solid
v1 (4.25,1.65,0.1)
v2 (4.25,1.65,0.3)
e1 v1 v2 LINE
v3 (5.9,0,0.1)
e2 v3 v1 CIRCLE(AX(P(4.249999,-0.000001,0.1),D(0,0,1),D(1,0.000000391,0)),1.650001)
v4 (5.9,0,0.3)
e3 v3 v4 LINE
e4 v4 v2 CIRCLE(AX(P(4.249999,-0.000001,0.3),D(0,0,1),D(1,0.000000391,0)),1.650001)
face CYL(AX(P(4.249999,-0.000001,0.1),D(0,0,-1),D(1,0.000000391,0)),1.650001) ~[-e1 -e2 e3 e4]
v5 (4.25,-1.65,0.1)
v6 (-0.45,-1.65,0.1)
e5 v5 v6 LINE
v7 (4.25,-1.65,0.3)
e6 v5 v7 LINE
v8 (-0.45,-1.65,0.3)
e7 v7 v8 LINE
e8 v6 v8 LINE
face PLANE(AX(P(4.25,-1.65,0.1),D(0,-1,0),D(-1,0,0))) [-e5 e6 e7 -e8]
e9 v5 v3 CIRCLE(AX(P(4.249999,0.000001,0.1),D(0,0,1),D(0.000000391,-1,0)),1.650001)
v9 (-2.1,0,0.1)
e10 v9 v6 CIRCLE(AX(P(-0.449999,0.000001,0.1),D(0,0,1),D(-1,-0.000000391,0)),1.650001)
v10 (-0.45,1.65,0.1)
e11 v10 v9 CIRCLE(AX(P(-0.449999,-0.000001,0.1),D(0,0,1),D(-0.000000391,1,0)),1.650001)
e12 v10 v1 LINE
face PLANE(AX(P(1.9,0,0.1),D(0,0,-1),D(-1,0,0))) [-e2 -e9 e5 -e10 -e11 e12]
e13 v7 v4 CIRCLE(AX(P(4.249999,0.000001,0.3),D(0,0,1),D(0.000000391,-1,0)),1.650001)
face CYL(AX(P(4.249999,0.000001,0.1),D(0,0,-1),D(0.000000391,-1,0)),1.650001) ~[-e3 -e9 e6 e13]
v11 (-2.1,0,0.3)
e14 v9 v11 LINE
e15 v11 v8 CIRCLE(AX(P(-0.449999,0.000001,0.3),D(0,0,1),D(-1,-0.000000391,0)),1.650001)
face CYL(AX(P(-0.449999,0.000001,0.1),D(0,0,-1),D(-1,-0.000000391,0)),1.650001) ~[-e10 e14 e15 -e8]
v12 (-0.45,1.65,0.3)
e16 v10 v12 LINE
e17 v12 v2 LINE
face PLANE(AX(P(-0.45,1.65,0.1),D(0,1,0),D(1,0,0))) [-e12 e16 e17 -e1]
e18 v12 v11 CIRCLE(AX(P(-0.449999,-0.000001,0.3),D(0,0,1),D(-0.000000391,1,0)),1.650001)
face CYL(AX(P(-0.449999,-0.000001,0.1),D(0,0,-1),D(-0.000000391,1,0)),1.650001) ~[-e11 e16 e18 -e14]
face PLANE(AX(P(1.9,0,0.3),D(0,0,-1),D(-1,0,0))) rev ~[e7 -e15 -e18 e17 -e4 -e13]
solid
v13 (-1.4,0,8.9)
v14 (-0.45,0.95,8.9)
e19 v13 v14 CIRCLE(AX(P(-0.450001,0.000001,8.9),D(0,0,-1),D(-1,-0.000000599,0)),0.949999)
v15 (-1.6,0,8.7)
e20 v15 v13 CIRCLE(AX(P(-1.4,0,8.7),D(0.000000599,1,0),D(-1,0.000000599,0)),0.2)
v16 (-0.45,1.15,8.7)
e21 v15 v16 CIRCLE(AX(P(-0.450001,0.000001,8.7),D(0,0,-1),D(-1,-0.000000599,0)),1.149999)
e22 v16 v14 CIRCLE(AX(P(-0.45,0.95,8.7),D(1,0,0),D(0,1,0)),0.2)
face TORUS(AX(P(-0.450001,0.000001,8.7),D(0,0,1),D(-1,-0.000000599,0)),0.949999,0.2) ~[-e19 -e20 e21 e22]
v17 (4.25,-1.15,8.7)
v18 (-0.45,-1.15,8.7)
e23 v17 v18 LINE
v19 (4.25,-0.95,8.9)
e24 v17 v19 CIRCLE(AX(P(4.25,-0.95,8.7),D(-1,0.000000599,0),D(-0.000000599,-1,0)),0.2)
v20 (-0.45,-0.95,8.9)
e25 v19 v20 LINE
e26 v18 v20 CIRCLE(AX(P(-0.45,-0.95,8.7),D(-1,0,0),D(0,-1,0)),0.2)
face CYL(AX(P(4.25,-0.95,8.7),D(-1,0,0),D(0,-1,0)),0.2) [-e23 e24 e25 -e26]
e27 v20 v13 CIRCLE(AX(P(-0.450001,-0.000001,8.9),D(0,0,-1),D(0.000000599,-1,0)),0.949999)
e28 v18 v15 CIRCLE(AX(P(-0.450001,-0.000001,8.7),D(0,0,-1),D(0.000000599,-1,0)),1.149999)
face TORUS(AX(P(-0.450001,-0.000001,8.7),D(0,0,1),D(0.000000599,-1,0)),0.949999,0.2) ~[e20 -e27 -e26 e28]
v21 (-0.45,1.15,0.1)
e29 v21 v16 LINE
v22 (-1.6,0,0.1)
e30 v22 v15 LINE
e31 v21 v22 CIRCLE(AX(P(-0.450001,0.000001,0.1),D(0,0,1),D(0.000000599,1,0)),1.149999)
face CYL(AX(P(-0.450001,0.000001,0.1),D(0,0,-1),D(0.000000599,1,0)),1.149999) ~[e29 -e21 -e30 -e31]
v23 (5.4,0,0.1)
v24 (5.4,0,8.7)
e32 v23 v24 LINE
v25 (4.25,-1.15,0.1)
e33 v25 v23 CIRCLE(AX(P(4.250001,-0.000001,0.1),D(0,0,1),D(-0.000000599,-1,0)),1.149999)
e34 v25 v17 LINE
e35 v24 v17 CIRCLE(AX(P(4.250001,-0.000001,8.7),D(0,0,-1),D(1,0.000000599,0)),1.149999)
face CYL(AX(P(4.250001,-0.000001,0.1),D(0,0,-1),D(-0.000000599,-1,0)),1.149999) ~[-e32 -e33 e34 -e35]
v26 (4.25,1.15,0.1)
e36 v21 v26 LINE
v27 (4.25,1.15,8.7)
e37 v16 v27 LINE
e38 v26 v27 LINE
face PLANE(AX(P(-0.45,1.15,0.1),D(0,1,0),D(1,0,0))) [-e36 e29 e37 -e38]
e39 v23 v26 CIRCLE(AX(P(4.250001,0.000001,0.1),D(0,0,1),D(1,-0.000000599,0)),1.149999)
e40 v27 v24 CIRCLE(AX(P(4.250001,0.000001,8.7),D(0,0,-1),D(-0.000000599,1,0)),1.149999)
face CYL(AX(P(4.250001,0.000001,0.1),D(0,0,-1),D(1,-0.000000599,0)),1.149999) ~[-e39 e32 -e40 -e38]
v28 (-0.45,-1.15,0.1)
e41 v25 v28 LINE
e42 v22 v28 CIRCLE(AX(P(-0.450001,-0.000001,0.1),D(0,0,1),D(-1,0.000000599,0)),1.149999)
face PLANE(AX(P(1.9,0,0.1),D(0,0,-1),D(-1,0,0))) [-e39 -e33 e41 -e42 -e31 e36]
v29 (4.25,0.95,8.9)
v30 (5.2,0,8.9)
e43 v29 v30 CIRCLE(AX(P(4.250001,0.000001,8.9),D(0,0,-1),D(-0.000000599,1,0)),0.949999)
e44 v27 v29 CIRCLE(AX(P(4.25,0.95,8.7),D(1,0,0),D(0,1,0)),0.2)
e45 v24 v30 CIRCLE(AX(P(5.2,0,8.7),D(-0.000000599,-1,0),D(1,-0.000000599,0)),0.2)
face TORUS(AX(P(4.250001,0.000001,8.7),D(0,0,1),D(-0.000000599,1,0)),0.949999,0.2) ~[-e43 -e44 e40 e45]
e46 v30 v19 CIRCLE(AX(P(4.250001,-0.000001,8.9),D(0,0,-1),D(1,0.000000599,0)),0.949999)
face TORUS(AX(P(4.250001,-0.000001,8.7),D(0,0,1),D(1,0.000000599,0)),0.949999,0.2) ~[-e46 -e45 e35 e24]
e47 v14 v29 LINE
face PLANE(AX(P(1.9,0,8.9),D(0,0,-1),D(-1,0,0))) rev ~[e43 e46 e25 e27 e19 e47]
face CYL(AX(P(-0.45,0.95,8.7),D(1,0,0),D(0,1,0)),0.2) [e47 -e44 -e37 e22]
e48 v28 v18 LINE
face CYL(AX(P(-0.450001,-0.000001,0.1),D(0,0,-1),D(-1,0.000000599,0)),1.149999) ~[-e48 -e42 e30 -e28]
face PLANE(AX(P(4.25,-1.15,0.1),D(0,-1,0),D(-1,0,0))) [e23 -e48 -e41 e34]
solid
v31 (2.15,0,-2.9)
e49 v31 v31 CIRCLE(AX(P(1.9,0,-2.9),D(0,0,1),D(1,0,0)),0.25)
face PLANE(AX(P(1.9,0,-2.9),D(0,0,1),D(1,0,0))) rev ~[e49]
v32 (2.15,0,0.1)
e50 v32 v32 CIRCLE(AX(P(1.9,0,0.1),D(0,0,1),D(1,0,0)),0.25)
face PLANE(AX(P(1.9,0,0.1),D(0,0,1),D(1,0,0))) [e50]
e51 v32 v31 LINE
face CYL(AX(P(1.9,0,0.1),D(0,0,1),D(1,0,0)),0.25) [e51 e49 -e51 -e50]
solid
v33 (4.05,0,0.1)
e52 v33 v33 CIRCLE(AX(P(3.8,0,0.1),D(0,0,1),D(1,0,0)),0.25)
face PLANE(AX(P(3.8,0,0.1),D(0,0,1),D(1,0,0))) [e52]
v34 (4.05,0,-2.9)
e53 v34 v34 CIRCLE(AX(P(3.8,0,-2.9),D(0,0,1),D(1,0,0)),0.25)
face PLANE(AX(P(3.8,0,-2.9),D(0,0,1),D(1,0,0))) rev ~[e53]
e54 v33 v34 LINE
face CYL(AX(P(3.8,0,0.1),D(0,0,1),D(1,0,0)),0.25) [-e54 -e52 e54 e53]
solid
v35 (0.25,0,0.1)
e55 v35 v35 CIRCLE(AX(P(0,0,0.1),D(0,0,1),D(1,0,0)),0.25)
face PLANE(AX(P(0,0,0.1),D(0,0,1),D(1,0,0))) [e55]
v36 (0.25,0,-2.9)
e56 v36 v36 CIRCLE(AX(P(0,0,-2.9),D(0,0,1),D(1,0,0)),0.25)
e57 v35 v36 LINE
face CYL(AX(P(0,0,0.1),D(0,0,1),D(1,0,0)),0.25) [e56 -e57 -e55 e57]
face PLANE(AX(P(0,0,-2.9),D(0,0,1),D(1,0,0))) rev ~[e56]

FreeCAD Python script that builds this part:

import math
import FreeCAD as App
import Part
import Sketcher
from FreeCAD import Vector
Q = App.Units.Quantity


def edges_at(feature, points):
    """Names of the edges that pass closest to the given points."""
    edges = feature.Shape.Edges
    near = lambda p: min(range(len(edges)), key=lambda i: edges[i].distToShape(Part.Vertex(*p))[0])
    return sorted({f"Edge{near(p) + 1}" for p in points})

doc = App.newDocument("Part")
body = doc.addObject("PartDesign::Body", "Body")
body.AllowCompound = True

# Sketch on XY plane
sketch1 = body.newObject("Sketcher::SketchObject", "Sketch")
sketch1.AttachmentSupport = (doc.getObject("XY_Plane"), [""])
sketch1.MapMode = "FlatFace"
sketch1.AttachmentOffset = App.Placement(Vector(0, 0, 0.1), App.Rotation())
sketch1.addGeometry([
    Part.Circle(Vector(0, 0, 0), Vector(0, 0, 1), 0.25),
    Part.Circle(Vector(3.8, 0, 0), Vector(0, 0, 1), 0.25),
    Part.Circle(Vector(1.9, 0, 0), Vector(0, 0, 1), 0.25),
], False)
sketch1.addConstraint([
    Sketcher.Constraint("Coincident", 0, 3, -1, 1),
    Sketcher.Constraint("Equal", 0, 1),
    Sketcher.Constraint("Equal", 1, 2),
    Sketcher.Constraint("PointOnObject", 1, 3, -1),
    Sketcher.Constraint("PointOnObject", 2, 3, -1),
    Sketcher.Constraint("Diameter", 0, Q("0.5 mm")),
    Sketcher.Constraint("DistanceX", -1, 1, 1, 3, Q("3.8 mm")),
    Sketcher.Constraint("DistanceX", -1, 1, 2, 3, Q("1.9 mm")),
])
pad1 = body.newObject("PartDesign::Pad", "Pad")
pad1.Profile = sketch1
pad1.Length = 3
pad1.Reversed = True
body2 = doc.addObject("PartDesign::Body", "Body001")

# Sketch on XY plane
sketch2 = body2.newObject("Sketcher::SketchObject", "Sketch001")
sketch2.AttachmentSupport = (doc.getObject("XY_Plane001"), [""])
sketch2.MapMode = "FlatFace"
sketch2.AttachmentOffset = App.Placement(Vector(0, 0, 0.1), App.Rotation())
sketch2.addGeometry([
    Part.LineSegment(Vector(4.2, 1.6, 0), Vector(-0.5, 1.6, 0)),  # 0
    Part.ArcOfCircle(Part.Circle(Vector(-0.4, 0, 0), Vector(0, 0, 1), 1.7), math.radians(90), math.radians(180)),  # 1
    Part.ArcOfCircle(Part.Circle(Vector(-0.4, 0, 0), Vector(0, 0, 1), 1.7), math.radians(-180), math.radians(-90)),  # 2
    Part.LineSegment(Vector(-0.5, -1.6, 0), Vector(4.2, -1.6, 0)),  # 3
    Part.ArcOfCircle(Part.Circle(Vector(4.2, 0, 0), Vector(0, 0, 1), 1.7), math.radians(-90), math.radians(0)),  # 4
    Part.ArcOfCircle(Part.Circle(Vector(4.2, 0, 0), Vector(0, 0, 1), 1.7), math.radians(0), math.radians(90)),  # 5
], False)
sketch2.addConstraint([
    Sketcher.Constraint("Tangent", 0, 2, 1, 1),
    Sketcher.Constraint("Tangent", 1, 2, 2, 1),
    Sketcher.Constraint("Tangent", 2, 2, 3, 1),
    Sketcher.Constraint("Tangent", 3, 2, 4, 1),
    Sketcher.Constraint("Tangent", 4, 2, 5, 1),
    Sketcher.Constraint("Tangent", 5, 2, 0, 1),
    Sketcher.Constraint("Horizontal", 0),
    Sketcher.Constraint("Horizontal", 3),
    Sketcher.Constraint("Equal", 1, 2),
    Sketcher.Constraint("Equal", 2, 4),
    Sketcher.Constraint("PointOnObject", 1, 3, -1),
    Sketcher.Constraint("PointOnObject", 1, 2, -1),
    Sketcher.Constraint("PointOnObject", 4, 2, -1),
    Sketcher.Constraint("Radius", 1, Q("1.650001 mm")),
    Sketcher.Constraint("DistanceX", 0, 2, 0, 1, Q("4.7 mm")),
    Sketcher.Constraint("DistanceX", 1, 2, -1, 1, Q("2.1 mm")),
])
pad2 = body2.newObject("PartDesign::Pad", "Pad001")
pad2.Profile = sketch2
pad2.Length = 0.2
body3 = doc.addObject("PartDesign::Body", "Body002")

# Sketch on XY plane
sketch3 = body3.newObject("Sketcher::SketchObject", "Sketch002")
sketch3.AttachmentSupport = (doc.getObject("XY_Plane002"), [""])
sketch3.MapMode = "FlatFace"
sketch3.AttachmentOffset = App.Placement(Vector(0, 0, 0.1), App.Rotation())
sketch3.addGeometry([
    Part.LineSegment(Vector(4.2, 1.1, 0), Vector(-0.5, 1.1, 0)),  # 0
    Part.ArcOfCircle(Part.Circle(Vector(-0.5, 0, 0), Vector(0, 0, 1), 1.1), math.radians(90), math.radians(180)),  # 1
    Part.ArcOfCircle(Part.Circle(Vector(-0.5, 0, 0), Vector(0, 0, 1), 1.1), math.radians(180), math.radians(270)),  # 2
    Part.LineSegment(Vector(-0.5, -1.1, 0), Vector(4.2, -1.1, 0)),  # 3
    Part.ArcOfCircle(Part.Circle(Vector(4.3, 0, 0), Vector(0, 0, 1), 1.1), math.radians(-90), math.radians(0)),  # 4
    Part.ArcOfCircle(Part.Circle(Vector(4.3, 0, 0), Vector(0, 0, 1), 1.1), math.radians(0), math.radians(90)),  # 5
], False)
sketch3.addConstraint([
    Sketcher.Constraint("Tangent", 0, 2, 1, 1),
    Sketcher.Constraint("Tangent", 1, 2, 2, 1),
    Sketcher.Constraint("Tangent", 2, 2, 3, 1),
    Sketcher.Constraint("Tangent", 3, 2, 4, 1),
    Sketcher.Constraint("Tangent", 4, 2, 5, 1),
    Sketcher.Constraint("Tangent", 5, 2, 0, 1),
    Sketcher.Constraint("Horizontal", 0),
    Sketcher.Constraint("Horizontal", 3),
    Sketcher.Constraint("Equal", 1, 2),
    Sketcher.Constraint("Equal", 2, 4),
    Sketcher.Constraint("PointOnObject", 1, 3, -1),
    Sketcher.Constraint("PointOnObject", 1, 2, -1),
    Sketcher.Constraint("PointOnObject", 4, 2, -1),
    Sketcher.Constraint("Radius", 1, Q("1.149999 mm")),
    Sketcher.Constraint("DistanceX", 0, 2, 0, 1, Q("4.7 mm")),
    Sketcher.Constraint("DistanceX", 1, 2, -1, 1, Q("1.6 mm")),
])
pad3 = body3.newObject("PartDesign::Pad", "Pad002")
pad3.Profile = sketch3
pad3.Length = 8.8
doc.recompute()

fillet = body3.newObject("PartDesign::Fillet", "Fillet")
fillet.Base = (pad3, edges_at(pad3, [
    (1.9, 1.15, 8.9),
    (-1.263, 0.813, 8.9),
    (-1.263, -0.813, 8.9),
    (1.9, -1.15, 8.9),
    (5.063, -0.813, 8.9),
    (5.063, 0.813, 8.9),
]))
fillet.Radius = 0.2

doc.recompute()
